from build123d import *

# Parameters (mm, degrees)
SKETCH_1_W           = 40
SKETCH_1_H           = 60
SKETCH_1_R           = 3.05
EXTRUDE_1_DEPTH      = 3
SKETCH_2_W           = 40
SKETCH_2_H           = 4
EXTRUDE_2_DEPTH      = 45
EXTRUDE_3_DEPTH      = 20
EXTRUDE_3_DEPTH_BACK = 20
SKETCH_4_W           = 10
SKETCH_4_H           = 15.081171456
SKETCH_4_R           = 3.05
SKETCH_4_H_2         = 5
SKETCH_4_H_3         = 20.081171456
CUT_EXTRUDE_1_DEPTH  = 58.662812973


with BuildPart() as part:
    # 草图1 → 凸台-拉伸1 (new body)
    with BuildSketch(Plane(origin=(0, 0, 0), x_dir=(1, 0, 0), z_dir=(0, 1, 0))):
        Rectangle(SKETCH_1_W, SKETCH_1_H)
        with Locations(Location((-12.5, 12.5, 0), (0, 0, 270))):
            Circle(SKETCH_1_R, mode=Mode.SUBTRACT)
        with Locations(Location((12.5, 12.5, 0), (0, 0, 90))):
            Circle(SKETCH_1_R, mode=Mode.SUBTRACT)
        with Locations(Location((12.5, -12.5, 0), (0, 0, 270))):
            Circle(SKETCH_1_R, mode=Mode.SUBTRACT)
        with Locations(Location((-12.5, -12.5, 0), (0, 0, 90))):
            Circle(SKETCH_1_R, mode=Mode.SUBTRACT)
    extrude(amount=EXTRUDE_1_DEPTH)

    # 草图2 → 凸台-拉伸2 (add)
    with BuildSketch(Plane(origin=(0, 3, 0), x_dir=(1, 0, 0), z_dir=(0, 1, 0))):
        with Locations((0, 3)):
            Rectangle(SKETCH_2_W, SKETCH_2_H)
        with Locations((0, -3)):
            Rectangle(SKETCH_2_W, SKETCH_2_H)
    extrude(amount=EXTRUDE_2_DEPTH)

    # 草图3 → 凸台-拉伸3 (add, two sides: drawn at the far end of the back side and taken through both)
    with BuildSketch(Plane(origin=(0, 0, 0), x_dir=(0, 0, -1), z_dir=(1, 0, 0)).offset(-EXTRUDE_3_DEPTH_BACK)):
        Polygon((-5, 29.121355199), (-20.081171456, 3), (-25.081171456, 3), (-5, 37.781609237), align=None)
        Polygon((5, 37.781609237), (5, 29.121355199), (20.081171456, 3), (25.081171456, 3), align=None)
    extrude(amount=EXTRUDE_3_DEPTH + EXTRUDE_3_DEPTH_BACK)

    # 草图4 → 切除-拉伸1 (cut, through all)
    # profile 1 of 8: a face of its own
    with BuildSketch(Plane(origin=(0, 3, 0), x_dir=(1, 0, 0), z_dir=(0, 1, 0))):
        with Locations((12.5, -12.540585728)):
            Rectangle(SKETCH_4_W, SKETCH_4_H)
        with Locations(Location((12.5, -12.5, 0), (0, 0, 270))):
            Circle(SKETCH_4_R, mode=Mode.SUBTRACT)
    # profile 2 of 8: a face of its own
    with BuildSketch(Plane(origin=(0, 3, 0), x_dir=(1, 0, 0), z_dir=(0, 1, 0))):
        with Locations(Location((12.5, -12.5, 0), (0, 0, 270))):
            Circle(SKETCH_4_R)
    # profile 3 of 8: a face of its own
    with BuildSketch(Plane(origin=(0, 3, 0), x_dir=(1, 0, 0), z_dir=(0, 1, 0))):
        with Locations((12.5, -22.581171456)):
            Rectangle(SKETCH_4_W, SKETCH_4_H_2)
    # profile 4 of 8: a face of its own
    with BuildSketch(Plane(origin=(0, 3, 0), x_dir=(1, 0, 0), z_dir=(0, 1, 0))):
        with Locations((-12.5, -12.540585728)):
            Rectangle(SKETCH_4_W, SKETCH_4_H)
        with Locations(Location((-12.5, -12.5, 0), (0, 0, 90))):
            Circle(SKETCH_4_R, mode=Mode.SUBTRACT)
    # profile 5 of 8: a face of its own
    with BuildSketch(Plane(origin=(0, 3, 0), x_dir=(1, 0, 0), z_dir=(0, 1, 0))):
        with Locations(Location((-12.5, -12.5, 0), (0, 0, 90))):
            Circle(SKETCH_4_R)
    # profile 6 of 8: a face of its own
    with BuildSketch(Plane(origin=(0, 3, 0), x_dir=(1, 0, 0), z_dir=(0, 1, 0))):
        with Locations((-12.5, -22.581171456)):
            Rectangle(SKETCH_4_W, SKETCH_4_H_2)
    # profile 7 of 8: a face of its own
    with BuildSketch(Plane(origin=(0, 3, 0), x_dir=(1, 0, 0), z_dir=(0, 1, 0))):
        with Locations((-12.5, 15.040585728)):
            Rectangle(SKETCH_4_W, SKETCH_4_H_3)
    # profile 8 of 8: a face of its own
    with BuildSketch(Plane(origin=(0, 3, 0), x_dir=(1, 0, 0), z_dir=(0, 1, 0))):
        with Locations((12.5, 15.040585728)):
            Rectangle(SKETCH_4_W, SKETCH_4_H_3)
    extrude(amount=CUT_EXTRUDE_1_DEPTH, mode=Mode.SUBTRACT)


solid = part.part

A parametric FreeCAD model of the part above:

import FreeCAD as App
import Part
import Sketcher

V = App.Vector
Q = App.Units.Quantity


def add_polygon(sketch, points):
    """Adds a closed chain of lines whose ends are joined by coincident constraints."""
    first, n = sketch.GeometryCount, len(points)
    for a, b in zip(points, points[1:] + points[:1]):
        sketch.addGeometry(Part.LineSegment(App.Vector(*a, 0), App.Vector(*b, 0)), False)
    for i in range(n):
        sketch.addConstraint(Sketcher.Constraint("Coincident", first + i, 2, first + (i + 1) % n, 1))

doc = App.newDocument("Part")
body = doc.addObject("PartDesign::Body", "Body")

# Sketch on XZ plane
sketch1 = body.newObject("Sketcher::SketchObject", "Sketch")
sketch1.AttachmentSupport = (doc.getObject("XZ_Plane"), [""])
sketch1.MapMode = "FlatFace"
add_polygon(sketch1, [(-20, -30), (-20, 30), (20, 30), (20, -30)])  # lines 0-3
sketch1.addGeometry(Part.Circle(V(-12.5, 12.5, 0), V(0, 0, 1), 3.05), False)  # 4
sketch1.addGeometry(Part.Circle(V(12.5, 12.5, 0), V(0, 0, 1), 3.05), False)  # 5
sketch1.addGeometry(Part.Circle(V(-12.5, -12.5, 0), V(0, 0, 1), 3.05), False)  # 6
sketch1.addGeometry(Part.Circle(V(12.5, -12.5, 0), V(0, 0, 1), 3.05), False)  # 7
sketch1.addConstraint([
    Sketcher.Constraint("Vertical", 0),
    Sketcher.Constraint("Horizontal", 1),
    Sketcher.Constraint("Vertical", 2),
    Sketcher.Constraint("Horizontal", 3),
    Sketcher.Constraint("Equal", 4, 5),
    Sketcher.Constraint("Equal", 5, 6),
    Sketcher.Constraint("Equal", 6, 7),
    Sketcher.Constraint("Symmetric", 5, 3, 6, 3, -1, 1),
    Sketcher.Constraint("Symmetric", 4, 3, 7, 3, -1, 1),
    Sketcher.Constraint("Symmetric", 0, 2, 2, 2, -1, 1),
    Sketcher.Constraint("Symmetric", 4, 3, 5, 3, -2),
    Sketcher.Constraint("Diameter", 4, 6.1),
    Sketcher.Constraint("DistanceX", 1, 1, 1, 2, 40.0),
    Sketcher.Constraint("DistanceY", 0, 1, 0, 2, 60.0),
    Sketcher.Constraint("DistanceX", 4, 3, 5, 3, 25.0),
    Sketcher.Constraint("DistanceY", 6, 3, 4, 3, 25.0),
])
pad1 = body.newObject("PartDesign::Pad", "Pad")
pad1.Profile = sketch1
pad1.Length = 3
pad1.Reversed = True

# Sketch on XZ plane
sketch2 = body.newObject("Sketcher::SketchObject", "Sketch001")
sketch2.AttachmentSupport = (doc.getObject("XZ_Plane"), [""])
sketch2.MapMode = "FlatFace"
sketch2.AttachmentOffset = App.Placement(V(0, 0, -3), App.Rotation())
add_polygon(sketch2, [(-20, -5), (-20, -1), (20, -1), (20, -5)])  # lines 0-3
add_polygon(sketch2, [(-20, 1), (-20, 5), (20, 5), (20, 1)])  # lines 4-7
sketch2.addConstraint([
    Sketcher.Constraint("Vertical", 0),
    Sketcher.Constraint("Horizontal", 1),
    Sketcher.Constraint("Vertical", 2),
    Sketcher.Constraint("Horizontal", 3),
    Sketcher.Constraint("Vertical", 4),
    Sketcher.Constraint("Horizontal", 5),
    Sketcher.Constraint("Vertical", 6),
    Sketcher.Constraint("Horizontal", 7),
    Sketcher.Constraint("Symmetric", 2, 2, 4, 2, -1, 1),
    Sketcher.Constraint("Symmetric", 0, 2, 6, 2, -1, 1),
    Sketcher.Constraint("Vertical", 3, 2, 4, 2),
    Sketcher.Constraint("DistanceX", 1, 1, 1, 2, 40.0),
    Sketcher.Constraint("DistanceY", 0, 1, 0, 2, 4.0),
    Sketcher.Constraint("DistanceY", 0, 2, -1, 1, 1.0),
])
pad2 = body.newObject("PartDesign::Pad", "Pad001")
pad2.Profile = sketch2
pad2.Length = 45
pad2.Reversed = True

# Sketch on YZ plane
sketch3 = body.newObject("Sketcher::SketchObject", "Sketch002")
sketch3.AttachmentSupport = (doc.getObject("YZ_Plane"), [""])
sketch3.MapMode = "FlatFace"
add_polygon(sketch3, [(3, 20.081171), (29.121355, 5), (37.781609, 5), (3, 25.081171)])  # lines 0-3
add_polygon(sketch3, [(37.781609, -5), (29.121355, -5), (3, -20.081171), (3, -25.081171)])  # lines 4-7
sketch3.addConstraint([
    Sketcher.Constraint("Horizontal", 1),
    Sketcher.Constraint("Vertical", 3),
    Sketcher.Constraint("Horizontal", 4),
    Sketcher.Constraint("Vertical", 6),
    Sketcher.Constraint("Symmetric", 0, 2, 4, 2, -1),
    Sketcher.Constraint("Symmetric", 3, 2, 5, 2, -1),
    Sketcher.Constraint("Parallel", 0, 2),
    Sketcher.Constraint("Parallel", 5, 7),
    Sketcher.Constraint("Vertical", 1, 2, 7, 2),
    Sketcher.Constraint("DistanceY", 3, 2, 3, 1, 5.0),
    Sketcher.Constraint("Angle", 0, Q("-30 deg")),
    Sketcher.Constraint("DistanceY", -1, 1, 0, 2, 5.0),
    Sketcher.Constraint("DistanceX", -1, 1, 2, 2, 3.0),
    Sketcher.Constraint("DistanceX", -1, 1, 1, 2, 37.781609),
])
pad3 = body.newObject("PartDesign::Pad", "Pad002")
pad3.Profile = sketch3
pad3.Type = "TwoLengths"
pad3.Length = 20
pad3.Length2 = 20

# Sketch on XZ plane
sketch4 = body.newObject("Sketcher::SketchObject", "Sketch003")
sketch4.AttachmentSupport = (doc.getObject("XZ_Plane"), [""])
sketch4.MapMode = "FlatFace"
sketch4.AttachmentOffset = App.Placement(V(0, 0, -3), App.Rotation())
add_polygon(sketch4, [(7.5, 5), (7.5, 25.081171), (17.5, 25.081171), (17.5, 5)])  # lines 0-3
add_polygon(sketch4, [(-17.5, 5), (-17.5, 25.081171), (-7.5, 25.081171), (-7.5, 5)])  # lines 4-7
add_polygon(sketch4, [(-17.5, -25.081171), (-17.5, -5), (-7.5, -5), (-7.5, -25.081171)])  # lines 8-11
add_polygon(sketch4, [(7.5, -25.081171), (7.5, -5), (17.5, -5), (17.5, -25.081171)])  # lines 12-15
sketch4.addConstraint([
    Sketcher.Constraint("Vertical", 0),
    Sketcher.Constraint("Horizontal", 1),
    Sketcher.Constraint("Vertical", 2),
    Sketcher.Constraint("Horizontal", 3),
    Sketcher.Constraint("Vertical", 4),
    Sketcher.Constraint("Horizontal", 5),
    Sketcher.Constraint("Vertical", 6),
    Sketcher.Constraint("Horizontal", 7),
    Sketcher.Constraint("Vertical", 8),
    Sketcher.Constraint("Horizontal", 9),
    Sketcher.Constraint("Vertical", 10),
    Sketcher.Constraint("Horizontal", 11),
    Sketcher.Constraint("Vertical", 12),
    Sketcher.Constraint("Horizontal", 13),
    Sketcher.Constraint("Vertical", 14),
    Sketcher.Constraint("Horizontal", 15),
    Sketcher.Constraint("Symmetric", 2, 2, 8, 2, -1, 1),
    Sketcher.Constraint("Symmetric", 0, 2, 10, 2, -1, 1),
    Sketcher.Constraint("Symmetric", 6, 2, 12, 2, -1, 1),
    Sketcher.Constraint("Symmetric", 4, 2, 14, 2, -1, 1),
    Sketcher.Constraint("Symmetric", 1, 2, 4, 2, -2),
    Sketcher.Constraint("Symmetric", 3, 2, 6, 2, -2),
    Sketcher.Constraint("DistanceX", 1, 1, 1, 2, 10.0),
    Sketcher.Constraint("DistanceY", -1, 1, 2, 2, 5.0),
    Sketcher.Constraint("DistanceX", 4, 2, 0, 2, 25.0),
    Sketcher.Constraint("DistanceY", 0, 1, 0, 2, 20.081171),
])
pocket1 = body.newObject("PartDesign::Pocket", "Pocket")
pocket1.Profile = sketch4
pocket1.Length = 58.662813

doc.recompute()
